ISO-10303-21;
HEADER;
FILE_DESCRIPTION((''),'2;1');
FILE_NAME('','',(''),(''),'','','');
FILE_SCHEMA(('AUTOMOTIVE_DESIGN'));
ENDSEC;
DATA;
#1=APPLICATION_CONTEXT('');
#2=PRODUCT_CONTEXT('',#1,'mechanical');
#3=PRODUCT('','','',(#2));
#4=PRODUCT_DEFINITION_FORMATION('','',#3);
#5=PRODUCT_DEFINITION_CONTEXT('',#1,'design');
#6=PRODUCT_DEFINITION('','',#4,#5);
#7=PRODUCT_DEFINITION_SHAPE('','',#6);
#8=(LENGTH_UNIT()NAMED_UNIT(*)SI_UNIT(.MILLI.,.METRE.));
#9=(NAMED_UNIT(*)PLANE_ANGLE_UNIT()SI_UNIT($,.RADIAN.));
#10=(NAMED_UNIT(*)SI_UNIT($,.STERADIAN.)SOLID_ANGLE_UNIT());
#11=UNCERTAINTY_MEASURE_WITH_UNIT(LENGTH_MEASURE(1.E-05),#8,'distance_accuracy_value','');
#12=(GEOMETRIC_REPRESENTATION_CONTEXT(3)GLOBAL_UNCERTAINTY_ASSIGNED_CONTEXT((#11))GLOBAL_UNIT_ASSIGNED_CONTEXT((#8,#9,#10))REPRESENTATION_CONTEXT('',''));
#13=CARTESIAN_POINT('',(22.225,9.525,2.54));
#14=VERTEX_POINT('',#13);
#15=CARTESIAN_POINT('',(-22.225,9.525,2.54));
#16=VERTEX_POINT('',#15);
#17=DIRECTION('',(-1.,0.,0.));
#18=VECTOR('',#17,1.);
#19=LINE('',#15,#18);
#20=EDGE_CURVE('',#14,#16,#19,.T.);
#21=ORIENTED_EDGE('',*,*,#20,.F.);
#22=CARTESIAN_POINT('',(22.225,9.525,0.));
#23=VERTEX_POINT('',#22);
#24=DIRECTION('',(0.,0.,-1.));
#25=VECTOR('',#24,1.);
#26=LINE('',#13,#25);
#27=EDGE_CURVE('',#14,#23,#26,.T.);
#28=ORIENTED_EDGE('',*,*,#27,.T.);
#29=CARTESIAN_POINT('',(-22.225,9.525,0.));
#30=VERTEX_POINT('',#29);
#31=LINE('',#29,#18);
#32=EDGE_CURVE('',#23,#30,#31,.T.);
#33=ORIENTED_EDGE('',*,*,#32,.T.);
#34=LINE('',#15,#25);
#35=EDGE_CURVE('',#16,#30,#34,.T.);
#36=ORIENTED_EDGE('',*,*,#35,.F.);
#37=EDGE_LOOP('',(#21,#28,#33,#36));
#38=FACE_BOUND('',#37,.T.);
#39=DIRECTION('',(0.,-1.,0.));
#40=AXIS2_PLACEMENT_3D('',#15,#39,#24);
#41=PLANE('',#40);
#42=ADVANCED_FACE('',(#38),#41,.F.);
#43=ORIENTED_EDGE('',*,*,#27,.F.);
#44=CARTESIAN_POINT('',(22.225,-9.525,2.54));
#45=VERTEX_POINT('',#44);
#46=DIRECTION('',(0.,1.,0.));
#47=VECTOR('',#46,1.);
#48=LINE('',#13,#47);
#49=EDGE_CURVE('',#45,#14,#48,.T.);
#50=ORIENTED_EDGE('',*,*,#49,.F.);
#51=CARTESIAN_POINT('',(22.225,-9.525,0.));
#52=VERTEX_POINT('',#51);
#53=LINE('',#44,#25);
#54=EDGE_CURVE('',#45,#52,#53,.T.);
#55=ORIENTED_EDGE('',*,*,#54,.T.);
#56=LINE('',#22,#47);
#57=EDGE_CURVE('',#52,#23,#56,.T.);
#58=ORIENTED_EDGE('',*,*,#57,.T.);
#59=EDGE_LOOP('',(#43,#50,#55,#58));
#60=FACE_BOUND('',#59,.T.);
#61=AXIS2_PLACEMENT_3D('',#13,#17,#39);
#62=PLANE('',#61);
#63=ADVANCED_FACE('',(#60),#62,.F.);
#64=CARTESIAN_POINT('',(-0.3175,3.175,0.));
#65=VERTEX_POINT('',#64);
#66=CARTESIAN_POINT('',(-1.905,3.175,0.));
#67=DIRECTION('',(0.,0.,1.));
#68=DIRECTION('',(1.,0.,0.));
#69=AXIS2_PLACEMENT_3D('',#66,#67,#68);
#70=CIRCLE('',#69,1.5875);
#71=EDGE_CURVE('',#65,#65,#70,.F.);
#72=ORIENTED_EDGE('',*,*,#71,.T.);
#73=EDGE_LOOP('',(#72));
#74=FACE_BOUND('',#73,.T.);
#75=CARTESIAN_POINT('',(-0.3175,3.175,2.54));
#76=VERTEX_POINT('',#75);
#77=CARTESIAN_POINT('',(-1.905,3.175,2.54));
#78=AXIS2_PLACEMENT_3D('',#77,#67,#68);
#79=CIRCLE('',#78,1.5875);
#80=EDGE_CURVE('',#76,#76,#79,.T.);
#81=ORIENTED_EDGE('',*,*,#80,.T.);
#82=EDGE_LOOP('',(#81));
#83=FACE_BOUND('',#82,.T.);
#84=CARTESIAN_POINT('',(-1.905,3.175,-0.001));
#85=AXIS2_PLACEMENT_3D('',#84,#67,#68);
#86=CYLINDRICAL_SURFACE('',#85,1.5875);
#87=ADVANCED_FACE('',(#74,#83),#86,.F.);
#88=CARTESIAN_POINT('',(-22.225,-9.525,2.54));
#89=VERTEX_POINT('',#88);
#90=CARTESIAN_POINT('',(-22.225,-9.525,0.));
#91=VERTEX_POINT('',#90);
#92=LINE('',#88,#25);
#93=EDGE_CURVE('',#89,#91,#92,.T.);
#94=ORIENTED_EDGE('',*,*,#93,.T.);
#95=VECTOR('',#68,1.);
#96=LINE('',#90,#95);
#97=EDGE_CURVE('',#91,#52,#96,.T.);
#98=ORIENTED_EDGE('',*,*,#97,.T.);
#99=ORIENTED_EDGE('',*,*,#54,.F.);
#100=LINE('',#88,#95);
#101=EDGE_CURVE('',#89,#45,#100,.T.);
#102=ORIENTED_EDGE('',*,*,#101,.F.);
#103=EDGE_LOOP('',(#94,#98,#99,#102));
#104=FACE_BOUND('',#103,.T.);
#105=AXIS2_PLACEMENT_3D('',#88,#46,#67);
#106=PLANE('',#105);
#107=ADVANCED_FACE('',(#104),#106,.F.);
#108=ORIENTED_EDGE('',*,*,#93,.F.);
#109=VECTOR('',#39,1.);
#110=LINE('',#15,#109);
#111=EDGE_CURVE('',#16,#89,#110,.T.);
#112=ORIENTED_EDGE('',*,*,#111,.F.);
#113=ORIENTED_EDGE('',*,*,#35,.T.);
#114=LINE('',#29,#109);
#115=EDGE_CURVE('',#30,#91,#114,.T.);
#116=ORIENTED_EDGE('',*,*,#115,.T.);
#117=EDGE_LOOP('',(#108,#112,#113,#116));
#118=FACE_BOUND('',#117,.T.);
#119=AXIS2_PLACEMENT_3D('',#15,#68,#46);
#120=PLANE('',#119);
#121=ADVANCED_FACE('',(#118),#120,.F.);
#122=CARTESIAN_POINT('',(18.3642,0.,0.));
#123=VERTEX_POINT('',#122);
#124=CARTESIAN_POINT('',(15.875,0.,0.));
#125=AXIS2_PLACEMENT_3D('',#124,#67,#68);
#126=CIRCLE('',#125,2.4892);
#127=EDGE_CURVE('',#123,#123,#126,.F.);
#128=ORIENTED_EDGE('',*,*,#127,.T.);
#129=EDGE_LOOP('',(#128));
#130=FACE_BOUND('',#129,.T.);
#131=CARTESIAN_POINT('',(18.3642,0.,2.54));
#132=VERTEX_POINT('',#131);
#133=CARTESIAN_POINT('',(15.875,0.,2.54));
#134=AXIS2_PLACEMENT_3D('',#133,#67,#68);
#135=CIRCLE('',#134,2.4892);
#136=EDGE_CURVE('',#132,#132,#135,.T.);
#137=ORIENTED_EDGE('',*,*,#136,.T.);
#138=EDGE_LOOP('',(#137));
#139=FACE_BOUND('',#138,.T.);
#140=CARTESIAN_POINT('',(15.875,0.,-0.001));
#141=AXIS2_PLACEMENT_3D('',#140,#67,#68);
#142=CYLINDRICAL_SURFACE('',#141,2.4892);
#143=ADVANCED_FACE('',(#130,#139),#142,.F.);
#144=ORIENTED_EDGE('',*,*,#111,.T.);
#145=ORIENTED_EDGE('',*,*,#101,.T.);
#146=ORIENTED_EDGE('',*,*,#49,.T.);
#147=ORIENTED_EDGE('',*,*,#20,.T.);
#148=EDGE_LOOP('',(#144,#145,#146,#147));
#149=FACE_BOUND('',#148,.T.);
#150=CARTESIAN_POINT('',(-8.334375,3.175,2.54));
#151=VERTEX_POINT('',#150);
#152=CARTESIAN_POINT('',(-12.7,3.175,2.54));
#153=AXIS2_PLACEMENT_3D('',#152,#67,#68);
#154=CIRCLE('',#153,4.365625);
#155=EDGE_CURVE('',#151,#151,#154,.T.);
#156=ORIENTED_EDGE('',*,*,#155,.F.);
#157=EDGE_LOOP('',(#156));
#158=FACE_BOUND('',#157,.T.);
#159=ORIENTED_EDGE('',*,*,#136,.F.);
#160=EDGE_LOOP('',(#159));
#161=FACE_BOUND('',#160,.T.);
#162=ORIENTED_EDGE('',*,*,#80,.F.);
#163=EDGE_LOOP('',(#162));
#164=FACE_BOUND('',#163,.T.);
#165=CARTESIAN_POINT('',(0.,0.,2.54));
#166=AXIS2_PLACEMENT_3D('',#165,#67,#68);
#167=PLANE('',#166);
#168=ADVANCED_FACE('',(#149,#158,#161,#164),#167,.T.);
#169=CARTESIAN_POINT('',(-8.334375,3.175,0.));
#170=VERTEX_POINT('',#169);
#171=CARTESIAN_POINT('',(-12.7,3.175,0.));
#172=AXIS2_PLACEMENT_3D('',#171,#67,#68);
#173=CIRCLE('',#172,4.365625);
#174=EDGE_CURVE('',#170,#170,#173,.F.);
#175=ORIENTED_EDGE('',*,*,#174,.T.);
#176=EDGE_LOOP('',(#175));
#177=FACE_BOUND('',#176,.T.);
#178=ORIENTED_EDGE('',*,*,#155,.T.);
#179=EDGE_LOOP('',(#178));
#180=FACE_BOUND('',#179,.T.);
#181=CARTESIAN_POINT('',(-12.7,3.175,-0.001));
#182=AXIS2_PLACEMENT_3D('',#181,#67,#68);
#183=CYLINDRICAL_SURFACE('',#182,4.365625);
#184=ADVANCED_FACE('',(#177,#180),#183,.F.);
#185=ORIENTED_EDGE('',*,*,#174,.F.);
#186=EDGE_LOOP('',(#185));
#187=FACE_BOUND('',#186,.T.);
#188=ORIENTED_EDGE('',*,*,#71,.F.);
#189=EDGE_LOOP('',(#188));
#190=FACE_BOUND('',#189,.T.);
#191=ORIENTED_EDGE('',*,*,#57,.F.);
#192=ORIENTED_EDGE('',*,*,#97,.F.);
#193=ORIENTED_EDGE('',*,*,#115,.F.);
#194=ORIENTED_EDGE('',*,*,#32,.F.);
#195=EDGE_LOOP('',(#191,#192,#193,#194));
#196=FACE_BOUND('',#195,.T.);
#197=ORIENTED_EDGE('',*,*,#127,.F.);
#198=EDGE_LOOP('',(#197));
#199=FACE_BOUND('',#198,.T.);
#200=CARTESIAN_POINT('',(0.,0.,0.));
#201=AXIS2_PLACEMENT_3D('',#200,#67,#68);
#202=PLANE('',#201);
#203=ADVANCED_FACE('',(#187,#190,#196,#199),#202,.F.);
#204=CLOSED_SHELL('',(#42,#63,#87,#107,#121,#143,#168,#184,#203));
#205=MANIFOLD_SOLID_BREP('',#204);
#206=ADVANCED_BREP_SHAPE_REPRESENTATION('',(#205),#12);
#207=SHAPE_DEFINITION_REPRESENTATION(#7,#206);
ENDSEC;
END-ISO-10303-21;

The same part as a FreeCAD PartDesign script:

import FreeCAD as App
import Part
import Sketcher
Q = App.Units.Quantity


def add_polygon(sketch, points):
    """Adds a closed chain of lines whose ends are joined by coincident constraints."""
    first, n = sketch.GeometryCount, len(points)
    for a, b in zip(points, points[1:] + points[:1]):
        sketch.addGeometry(Part.LineSegment(App.Vector(*a, 0), App.Vector(*b, 0)), False)
    for i in range(n):
        sketch.addConstraint(Sketcher.Constraint("Coincident", first + i, 2, first + (i + 1) % n, 1))

doc = App.newDocument("Part")
body = doc.addObject("PartDesign::Body", "Body")

sketch1 = body.newObject("Sketcher::SketchObject", "Sketch")
sketch1.AttachmentSupport = (doc.getObject("XY_Plane"), [""])
sketch1.MapMode = "FlatFace"
add_polygon(sketch1, [(-22.225, 9.525), (-22.225, -9.525), (22.225, -9.525), (22.225, 9.525)])
sketch1.addConstraint(Sketcher.Constraint("Vertical", 0))
sketch1.addConstraint(Sketcher.Constraint("Horizontal", 1))
sketch1.addConstraint(Sketcher.Constraint("Vertical", 2))
sketch1.addConstraint(Sketcher.Constraint("Horizontal", 3))
sketch1.addConstraint(Sketcher.Constraint("Symmetric", 0, 2, 2, 2, -1, 1))
sketch1.addConstraint(Sketcher.Constraint("DistanceX", 1, 1, 1, 2, Q("1.75 in")))
sketch1.addConstraint(Sketcher.Constraint("DistanceY", 0, 2, 0, 1, Q("0.75 in")))
pad1 = body.newObject("PartDesign::Pad", "Pad")
pad1.Profile = sketch1
pad1.Length = Q("0.1 in")

sketch2 = body.newObject("Sketcher::SketchObject", "Sketch001")
sketch2.AttachmentSupport = (doc.getObject("XY_Plane"), [""])
sketch2.MapMode = "FlatFace"
sketch2.AttachmentOffset = App.Placement(App.Vector(0, 0, 0.1 * 25.4), App.Rotation())
sketch2.addGeometry(Part.Circle(App.Vector(-12.7, 3.175, 0), App.Vector(0, 0, 1), 4.365625), False)
sketch2.addConstraint(Sketcher.Constraint("Diameter", 0, Q("0.34375 in")))
sketch2.addConstraint(Sketcher.Constraint("DistanceX", 0, 3, -1, 1, Q("0.5 in")))
sketch2.addConstraint(Sketcher.Constraint("DistanceY", -1, 1, 0, 3, Q("0.125 in")))
pocket1 = body.newObject("PartDesign::Pocket", "Pocket")
pocket1.Profile = sketch2
pocket1.Type = "UpToFirst"

sketch3 = body.newObject("Sketcher::SketchObject", "Sketch002")
sketch3.AttachmentSupport = (doc.getObject("XY_Plane"), [""])
sketch3.MapMode = "FlatFace"
sketch3.AttachmentOffset = App.Placement(App.Vector(0, 0, 0.1 * 25.4), App.Rotation())
sketch3.addGeometry(Part.Circle(App.Vector(-1.905, 3.175, 0), App.Vector(0, 0, 1), 1.5875), False)
sketch3.addConstraint(Sketcher.Constraint("Diameter", 0, Q("0.125 in")))
sketch3.addConstraint(Sketcher.Constraint("DistanceX", 0, 3, -1, 1, Q("0.075 in")))
sketch3.addConstraint(Sketcher.Constraint("DistanceY", -1, 1, 0, 3, Q("0.125 in")))
pocket2 = body.newObject("PartDesign::Pocket", "Pocket001")
pocket2.Profile = sketch3
pocket2.Type = "UpToFirst"

sketch4 = body.newObject("Sketcher::SketchObject", "Sketch003")
sketch4.AttachmentSupport = (doc.getObject("XY_Plane"), [""])
sketch4.MapMode = "FlatFace"
sketch4.AttachmentOffset = App.Placement(App.Vector(0, 0, 0.1 * 25.4), App.Rotation())
sketch4.addGeometry(Part.Circle(App.Vector(15.875, 0, 0), App.Vector(0, 0, 1), 2.4892), False)
sketch4.addConstraint(Sketcher.Constraint("PointOnObject", 0, 3, -1))
sketch4.addConstraint(Sketcher.Constraint("Diameter", 0, Q("0.196 in")))
sketch4.addConstraint(Sketcher.Constraint("DistanceX", -1, 1, 0, 3, Q("0.625 in")))
pocket3 = body.newObject("PartDesign::Pocket", "Pocket002")
pocket3.Profile = sketch4
pocket3.Type = "UpToFirst"

doc.recompute()
